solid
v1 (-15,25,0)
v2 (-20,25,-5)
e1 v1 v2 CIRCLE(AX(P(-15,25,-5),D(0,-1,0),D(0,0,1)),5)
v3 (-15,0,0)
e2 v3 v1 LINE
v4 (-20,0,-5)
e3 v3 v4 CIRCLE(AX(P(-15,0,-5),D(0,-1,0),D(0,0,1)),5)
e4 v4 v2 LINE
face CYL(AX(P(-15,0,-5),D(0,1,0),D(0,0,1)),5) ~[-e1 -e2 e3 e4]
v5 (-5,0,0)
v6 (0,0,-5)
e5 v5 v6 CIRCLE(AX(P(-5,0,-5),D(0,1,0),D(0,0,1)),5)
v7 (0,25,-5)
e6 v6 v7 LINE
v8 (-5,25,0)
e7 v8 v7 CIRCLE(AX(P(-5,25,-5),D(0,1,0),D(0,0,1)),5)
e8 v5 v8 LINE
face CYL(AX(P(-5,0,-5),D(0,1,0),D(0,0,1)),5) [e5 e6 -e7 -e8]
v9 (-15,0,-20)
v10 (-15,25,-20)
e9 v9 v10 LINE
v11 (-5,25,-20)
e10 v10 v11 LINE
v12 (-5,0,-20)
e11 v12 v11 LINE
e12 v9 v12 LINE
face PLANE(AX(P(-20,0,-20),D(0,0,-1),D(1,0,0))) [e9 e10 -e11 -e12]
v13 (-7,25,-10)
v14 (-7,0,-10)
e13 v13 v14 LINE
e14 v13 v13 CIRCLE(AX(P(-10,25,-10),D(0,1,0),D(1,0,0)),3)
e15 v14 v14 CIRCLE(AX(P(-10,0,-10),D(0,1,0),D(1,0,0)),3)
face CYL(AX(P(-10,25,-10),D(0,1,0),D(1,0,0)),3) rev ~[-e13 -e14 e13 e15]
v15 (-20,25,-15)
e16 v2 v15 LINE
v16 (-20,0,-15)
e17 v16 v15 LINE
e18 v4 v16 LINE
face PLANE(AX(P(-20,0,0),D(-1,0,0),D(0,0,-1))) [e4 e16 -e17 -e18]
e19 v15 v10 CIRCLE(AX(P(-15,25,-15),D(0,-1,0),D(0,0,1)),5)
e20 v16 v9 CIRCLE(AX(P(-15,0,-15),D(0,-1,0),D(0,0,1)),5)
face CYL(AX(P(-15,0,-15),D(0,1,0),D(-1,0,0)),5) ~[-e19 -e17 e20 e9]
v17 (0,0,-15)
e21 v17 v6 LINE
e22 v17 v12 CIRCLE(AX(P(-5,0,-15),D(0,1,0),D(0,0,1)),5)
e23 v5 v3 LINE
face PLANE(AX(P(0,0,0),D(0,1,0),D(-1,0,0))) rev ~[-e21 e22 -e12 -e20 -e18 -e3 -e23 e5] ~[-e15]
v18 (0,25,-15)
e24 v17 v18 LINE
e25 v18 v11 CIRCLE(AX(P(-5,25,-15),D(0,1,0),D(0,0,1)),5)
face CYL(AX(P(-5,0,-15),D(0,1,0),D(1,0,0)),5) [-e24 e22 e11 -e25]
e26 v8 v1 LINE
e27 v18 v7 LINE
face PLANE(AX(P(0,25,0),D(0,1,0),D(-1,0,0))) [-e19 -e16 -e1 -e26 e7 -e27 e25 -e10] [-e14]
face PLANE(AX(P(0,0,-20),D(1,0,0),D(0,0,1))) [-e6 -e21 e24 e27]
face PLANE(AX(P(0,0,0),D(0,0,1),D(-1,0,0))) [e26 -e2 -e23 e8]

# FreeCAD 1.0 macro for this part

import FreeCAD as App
import Part
import Sketcher
Q = App.Units.Quantity


def edges_at(feature, points):
    """Names of the edges that pass closest to the given points."""
    edges = feature.Shape.Edges
    near = lambda p: min(range(len(edges)), key=lambda i: edges[i].distToShape(Part.Vertex(*p))[0])
    return sorted({f"Edge{near(p) + 1}" for p in points})


def add_polygon(sketch, points):
    """Adds a closed chain of lines whose ends are joined by coincident constraints."""
    first, n = sketch.GeometryCount, len(points)
    for a, b in zip(points, points[1:] + points[:1]):
        sketch.addGeometry(Part.LineSegment(App.Vector(*a, 0), App.Vector(*b, 0)), False)
    for i in range(n):
        sketch.addConstraint(Sketcher.Constraint("Coincident", first + i, 2, first + (i + 1) % n, 1))

doc = App.newDocument("Part")
params = doc.addObject("Spreadsheet::Sheet", "Params")
for row, (alias, value) in enumerate([
    ("sketch1_width", "20 mm"),
    ("pad1_length", "25 mm"),
    ("sketch2_diameter", "6 mm"),
    ("fillet_radius", "5 mm"),
], start=1):
    params.set(f"A{row}", alias)
    params.set(f"B{row}", "=" + value)
    params.setAlias(f"B{row}", alias)

body = doc.addObject("PartDesign::Body", "Body")

# Sketch on XZ plane
sketch1 = doc.addObject("Sketcher::SketchObject", "Sketch")
body.addObject(sketch1)
sketch1.AttachmentSupport = (doc.XZ_Plane, [""])
sketch1.MapMode = "FlatFace"
add_polygon(sketch1, [(-20, 0), (0, 0), (0, -20), (-20, -20)])  # lines 0-3
sketch1.addConstraint([
    Sketcher.Constraint("Horizontal", 0),
    Sketcher.Constraint("Vertical", 1),
    Sketcher.Constraint("Horizontal", 2),
    Sketcher.Constraint("Vertical", 3),
    Sketcher.Constraint("Coincident", 0, 2, -1, 1),
    Sketcher.Constraint("Equal", 2, 1),
    Sketcher.Constraint("DistanceX", 0, 1, 0, 2, Q("20 mm")),
])
sketch1.setExpression("Constraints[10]", "Params.sketch1_width")
pad1 = doc.addObject("PartDesign::Pad", "Pad")
body.addObject(pad1)
pad1.Profile = sketch1
pad1.setExpression("Length", "Params.pad1_length")
pad1.Reversed = True

# Sketch on XZ plane
sketch2 = doc.addObject("Sketcher::SketchObject", "Sketch001")
body.addObject(sketch2)
sketch2.AttachmentSupport = (doc.XZ_Plane, [""])
sketch2.MapMode = "FlatFace"
sketch2.AttachmentOffset = App.Placement(App.Vector(0, 0, -25), App.Rotation())
sketch2.addGeometry(Part.Circle(App.Vector(-10, -10, 0), App.Vector(0, 0, 1), 3), False)
sketch2.addConstraint([
    Sketcher.Constraint("Diameter", 0, Q("6 mm")),
    Sketcher.Constraint("DistanceX", 0, 3, -1, 1, Q("10 mm")),
    Sketcher.Constraint("DistanceY", 0, 3, -1, 1, Q("10 mm")),
])
sketch2.setExpression("Constraints[0]", "Params.sketch2_diameter")
pocket1 = doc.addObject("PartDesign::Pocket", "Pocket")
body.addObject(pocket1)
pocket1.Profile = sketch2
pocket1.Type = "ThroughAll"
pocket1.Reversed = True
doc.recompute()

fillet = doc.addObject("PartDesign::Fillet", "Fillet")
body.addObject(fillet)
fillet.Base = (pocket1, edges_at(pocket1, [
    (-20, 12.5, -20),
    (0, 12.5, 0),
    (0, 12.5, -20),
    (-20, 12.5, 0),
]))
fillet.setExpression("Radius", "Params.fillet_radius")

doc.recompute()
